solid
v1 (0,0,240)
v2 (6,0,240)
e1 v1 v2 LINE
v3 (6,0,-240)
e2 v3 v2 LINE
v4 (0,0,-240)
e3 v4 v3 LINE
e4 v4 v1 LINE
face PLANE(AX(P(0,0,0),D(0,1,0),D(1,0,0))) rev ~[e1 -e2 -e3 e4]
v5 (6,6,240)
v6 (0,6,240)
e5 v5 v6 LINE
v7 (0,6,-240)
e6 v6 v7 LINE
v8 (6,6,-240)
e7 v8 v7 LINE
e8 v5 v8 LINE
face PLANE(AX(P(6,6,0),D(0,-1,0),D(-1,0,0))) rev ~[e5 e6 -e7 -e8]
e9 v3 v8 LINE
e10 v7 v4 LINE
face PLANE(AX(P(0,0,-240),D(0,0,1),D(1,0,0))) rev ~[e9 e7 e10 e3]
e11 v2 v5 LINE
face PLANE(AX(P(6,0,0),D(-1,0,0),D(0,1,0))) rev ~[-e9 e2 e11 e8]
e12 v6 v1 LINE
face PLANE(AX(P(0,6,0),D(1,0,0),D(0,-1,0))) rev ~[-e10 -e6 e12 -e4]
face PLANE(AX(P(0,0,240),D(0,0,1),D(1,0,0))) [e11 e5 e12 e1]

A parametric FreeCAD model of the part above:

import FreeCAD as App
import Part
import Sketcher
from FreeCAD import Vector


def add_polygon(sketch, points):
    """Adds a closed chain of lines whose ends are joined by coincident constraints."""
    first, n = sketch.GeometryCount, len(points)
    for a, b in zip(points, points[1:] + points[:1]):
        sketch.addGeometry(Part.LineSegment(App.Vector(*a, 0), App.Vector(*b, 0)), False)
    for i in range(n):
        sketch.addConstraint(Sketcher.Constraint("Coincident", first + i, 2, first + (i + 1) % n, 1))

doc = App.newDocument("Part")
params = doc.addObject("Spreadsheet::Sheet", "Params")
for row, (alias, value) in enumerate([
    ("sketch1_width", "6 mm"),
    ("pad1_length", "480 mm"),
], start=1):
    params.set(f"A{row}", alias)
    params.set(f"B{row}", "=" + value)
    params.setAlias(f"B{row}", alias)

body = doc.addObject("PartDesign::Body", "Body")

sketch1 = doc.addObject("Sketcher::SketchObject", "Sketch")
body.addObject(sketch1)
sketch1.AttachmentSupport = (doc.XY_Plane, [""])
sketch1.MapMode = "FlatFace"
add_polygon(sketch1, [(0, 6), (0, 0), (6, 0), (6, 6)])
sketch1.addConstraint([
    Sketcher.Constraint("Vertical", 0),
    Sketcher.Constraint("Horizontal", 1),
    Sketcher.Constraint("Vertical", 2),
    Sketcher.Constraint("Horizontal", 3),
    Sketcher.Constraint("Coincident", 0, 2, -1, 1),
    Sketcher.Constraint("Equal", 3, 0),
    Sketcher.Constraint("DistanceX", 1, 1, 1, 2, 6.0),
])
sketch1.setExpression("Constraints[10]", "Params.sketch1_width")
pad1 = doc.addObject("PartDesign::Pad", "Pad")
body.addObject(pad1)
pad1.Profile = sketch1
pad1.setExpression("Length", "Params.pad1_length")
pad1.Midplane = True

doc.recompute()
